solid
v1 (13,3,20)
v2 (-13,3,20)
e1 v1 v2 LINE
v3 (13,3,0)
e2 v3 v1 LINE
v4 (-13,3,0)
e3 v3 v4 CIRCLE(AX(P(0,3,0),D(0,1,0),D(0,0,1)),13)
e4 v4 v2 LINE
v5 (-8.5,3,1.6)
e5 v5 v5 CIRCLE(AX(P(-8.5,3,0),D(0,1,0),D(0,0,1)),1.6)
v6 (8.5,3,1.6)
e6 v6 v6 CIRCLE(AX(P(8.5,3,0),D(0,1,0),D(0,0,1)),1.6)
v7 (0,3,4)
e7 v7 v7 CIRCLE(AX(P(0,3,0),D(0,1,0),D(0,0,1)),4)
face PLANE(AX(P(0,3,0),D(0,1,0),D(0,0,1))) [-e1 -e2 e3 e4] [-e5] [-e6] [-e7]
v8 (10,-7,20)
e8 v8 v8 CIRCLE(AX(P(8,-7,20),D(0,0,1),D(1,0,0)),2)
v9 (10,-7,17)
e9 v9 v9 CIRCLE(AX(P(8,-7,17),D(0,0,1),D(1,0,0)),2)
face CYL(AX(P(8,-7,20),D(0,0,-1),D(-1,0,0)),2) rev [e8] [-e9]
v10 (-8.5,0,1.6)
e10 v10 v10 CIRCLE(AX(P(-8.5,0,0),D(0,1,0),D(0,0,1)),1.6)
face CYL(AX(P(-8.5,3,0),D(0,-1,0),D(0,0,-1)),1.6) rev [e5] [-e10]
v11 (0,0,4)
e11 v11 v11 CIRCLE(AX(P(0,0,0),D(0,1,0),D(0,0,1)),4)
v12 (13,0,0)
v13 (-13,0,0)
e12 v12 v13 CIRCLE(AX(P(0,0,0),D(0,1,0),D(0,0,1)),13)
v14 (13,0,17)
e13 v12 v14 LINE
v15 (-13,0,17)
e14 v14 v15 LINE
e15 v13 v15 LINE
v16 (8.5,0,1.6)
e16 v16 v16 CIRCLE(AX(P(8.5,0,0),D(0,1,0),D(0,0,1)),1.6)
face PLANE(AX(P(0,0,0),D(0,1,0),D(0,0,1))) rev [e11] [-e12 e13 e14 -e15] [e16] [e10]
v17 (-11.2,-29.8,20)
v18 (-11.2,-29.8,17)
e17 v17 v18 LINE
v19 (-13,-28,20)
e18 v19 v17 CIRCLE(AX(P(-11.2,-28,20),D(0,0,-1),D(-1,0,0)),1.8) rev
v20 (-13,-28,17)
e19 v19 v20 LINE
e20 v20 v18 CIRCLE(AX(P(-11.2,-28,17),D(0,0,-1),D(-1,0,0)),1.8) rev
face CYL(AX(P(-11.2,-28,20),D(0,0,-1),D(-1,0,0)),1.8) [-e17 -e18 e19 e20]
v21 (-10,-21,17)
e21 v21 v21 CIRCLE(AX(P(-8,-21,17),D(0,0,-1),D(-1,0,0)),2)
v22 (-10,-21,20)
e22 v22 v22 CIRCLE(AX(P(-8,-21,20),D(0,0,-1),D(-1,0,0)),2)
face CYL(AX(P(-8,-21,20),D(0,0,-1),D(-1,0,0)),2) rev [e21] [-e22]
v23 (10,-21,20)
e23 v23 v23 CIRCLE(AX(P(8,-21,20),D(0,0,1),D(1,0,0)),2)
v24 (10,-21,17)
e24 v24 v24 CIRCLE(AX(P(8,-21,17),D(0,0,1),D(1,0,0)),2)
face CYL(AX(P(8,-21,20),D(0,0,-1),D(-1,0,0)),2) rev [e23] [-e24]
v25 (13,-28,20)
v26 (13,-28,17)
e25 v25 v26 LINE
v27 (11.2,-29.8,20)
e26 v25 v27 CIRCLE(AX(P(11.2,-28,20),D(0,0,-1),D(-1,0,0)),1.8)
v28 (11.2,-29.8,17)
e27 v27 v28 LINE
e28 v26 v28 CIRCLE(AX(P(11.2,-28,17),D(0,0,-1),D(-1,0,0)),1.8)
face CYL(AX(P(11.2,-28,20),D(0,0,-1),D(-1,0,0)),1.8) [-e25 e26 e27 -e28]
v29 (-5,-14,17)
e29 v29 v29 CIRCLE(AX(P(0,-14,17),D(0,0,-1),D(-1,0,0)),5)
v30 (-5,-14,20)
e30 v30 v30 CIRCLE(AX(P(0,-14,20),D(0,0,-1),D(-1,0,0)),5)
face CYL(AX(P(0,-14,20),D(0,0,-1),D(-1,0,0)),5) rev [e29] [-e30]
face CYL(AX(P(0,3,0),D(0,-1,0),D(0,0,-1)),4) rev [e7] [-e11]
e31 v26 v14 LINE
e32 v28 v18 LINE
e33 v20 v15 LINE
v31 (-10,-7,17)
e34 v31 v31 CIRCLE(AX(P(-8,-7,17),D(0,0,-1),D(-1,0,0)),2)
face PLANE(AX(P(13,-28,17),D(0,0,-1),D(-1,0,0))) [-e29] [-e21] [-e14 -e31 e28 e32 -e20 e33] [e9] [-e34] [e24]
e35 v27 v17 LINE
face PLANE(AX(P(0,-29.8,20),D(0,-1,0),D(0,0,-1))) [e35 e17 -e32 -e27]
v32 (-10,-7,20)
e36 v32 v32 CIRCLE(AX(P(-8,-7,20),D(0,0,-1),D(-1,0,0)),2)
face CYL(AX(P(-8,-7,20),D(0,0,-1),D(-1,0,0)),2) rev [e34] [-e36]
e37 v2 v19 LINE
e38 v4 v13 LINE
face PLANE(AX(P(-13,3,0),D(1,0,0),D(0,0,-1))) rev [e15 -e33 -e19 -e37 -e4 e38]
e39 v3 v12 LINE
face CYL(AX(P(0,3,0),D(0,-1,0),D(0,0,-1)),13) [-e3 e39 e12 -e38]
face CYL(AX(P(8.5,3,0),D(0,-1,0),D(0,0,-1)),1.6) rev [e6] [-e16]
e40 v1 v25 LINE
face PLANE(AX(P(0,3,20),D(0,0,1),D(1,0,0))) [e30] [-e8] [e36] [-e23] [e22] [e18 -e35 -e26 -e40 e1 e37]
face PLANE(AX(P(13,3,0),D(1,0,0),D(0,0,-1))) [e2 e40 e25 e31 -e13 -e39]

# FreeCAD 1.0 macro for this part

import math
import FreeCAD as App
import Part
import Sketcher
Q = App.Units.Quantity


def add_polygon(sketch, points):
    """Adds a closed chain of lines whose ends are joined by coincident constraints."""
    first, n = sketch.GeometryCount, len(points)
    for a, b in zip(points, points[1:] + points[:1]):
        sketch.addGeometry(Part.LineSegment(App.Vector(*a, 0), App.Vector(*b, 0)), False)
    for i in range(n):
        sketch.addConstraint(Sketcher.Constraint("Coincident", first + i, 2, first + (i + 1) % n, 1))

doc = App.newDocument("Part")
body = doc.addObject("PartDesign::Body", "Body")

# Sketch on XZ plane
sketch1 = body.newObject("Sketcher::SketchObject", "Sketch")
sketch1.AttachmentSupport = (doc.getObject("XZ_Plane"), [""])
sketch1.MapMode = "FlatFace"
sketch1.addGeometry([
    Part.ArcOfCircle(Part.Circle(App.Vector(0, 0, 0), App.Vector(0, 0, 1), 13), math.radians(180), math.radians(360)),  # 0
    Part.LineSegment(App.Vector(-13, 0, 0), App.Vector(-13, 20, 0)),  # 1
    Part.LineSegment(App.Vector(-13, 20, 0), App.Vector(13, 20, 0)),  # 2
    Part.LineSegment(App.Vector(13, 20, 0), App.Vector(13, 0, 0)),  # 3
    Part.Circle(App.Vector(-8.5, 0, 0), App.Vector(0, 0, 1), 1.6),  # 4
    Part.Circle(App.Vector(0, 0, 0), App.Vector(0, 0, 1), 4),  # 5
    Part.Circle(App.Vector(8.5, 0, 0), App.Vector(0, 0, 1), 1.6),  # 6
], False)
sketch1.addConstraint([
    Sketcher.Constraint("Tangent", 0, 1, 1, 1),
    Sketcher.Constraint("Coincident", 1, 2, 2, 1),
    Sketcher.Constraint("Coincident", 2, 2, 3, 1),
    Sketcher.Constraint("Tangent", 3, 2, 0, 2),
    Sketcher.Constraint("Vertical", 1),
    Sketcher.Constraint("Horizontal", 2),
    Sketcher.Constraint("Vertical", 3),
    Sketcher.Constraint("Coincident", 0, 3, -1, 1),
    Sketcher.Constraint("Coincident", 5, 3, -1, 1),
    Sketcher.Constraint("Equal", 4, 6),
    Sketcher.Constraint("Symmetric", 4, 3, 6, 3, -1, 1),
    Sketcher.Constraint("PointOnObject", 4, 3, -1),
    Sketcher.Constraint("Diameter", 5, Q("8 mm")),
    Sketcher.Constraint("Radius", 0, Q("13 mm")),
    Sketcher.Constraint("Diameter", 4, Q("3.2 mm")),
    Sketcher.Constraint("DistanceY", 1, 1, 1, 2, Q("20 mm")),
    Sketcher.Constraint("DistanceX", 4, 3, 6, 3, Q("17 mm")),
])
pad1 = body.newObject("PartDesign::Pad", "Pad")
pad1.Profile = sketch1
pad1.Length = 3
pad1.Reversed = True

# Sketch on XZ plane
sketch2 = body.newObject("Sketcher::SketchObject", "Sketch001")
sketch2.AttachmentSupport = (doc.getObject("XZ_Plane"), [""])
sketch2.MapMode = "FlatFace"
add_polygon(sketch2, [(-13, 20), (-13, 17), (13, 17), (13, 20)])  # lines 0-3
sketch2.addConstraint([
    Sketcher.Constraint("Vertical", 0),
    Sketcher.Constraint("Horizontal", 1),
    Sketcher.Constraint("Vertical", 2),
    Sketcher.Constraint("Horizontal", 3),
    Sketcher.Constraint("DistanceX", 1, 1, 1, 2, Q("26 mm")),
    Sketcher.Constraint("DistanceY", 0, 2, 0, 1, Q("3 mm")),
    Sketcher.Constraint("DistanceX", 0, 2, -1, 1, Q("13 mm")),
    Sketcher.Constraint("DistanceY", -1, 1, 0, 2, Q("17 mm")),
])
pad2 = body.newObject("PartDesign::Pad", "Pad001")
pad2.Profile = sketch2
pad2.Length = 28

# Sketch on XY plane
sketch3 = body.newObject("Sketcher::SketchObject", "Sketch002")
sketch3.AttachmentSupport = (doc.getObject("XY_Plane"), [""])
sketch3.MapMode = "FlatFace"
sketch3.AttachmentOffset = App.Placement(App.Vector(0, 0, 17), App.Rotation())
sketch3.addGeometry([
    Part.Circle(App.Vector(0, -14, 0), App.Vector(0, 0, 1), 5),  # 0
    Part.Circle(App.Vector(-8, -7, 0), App.Vector(0, 0, 1), 2),  # 1
    Part.Circle(App.Vector(-8, -21, 0), App.Vector(0, 0, 1), 2),  # 2
    Part.Circle(App.Vector(8, -21, 0), App.Vector(0, 0, 1), 2),  # 3
    Part.Circle(App.Vector(8, -7, 0), App.Vector(0, 0, 1), 2),  # 4
], False)
sketch3.addConstraint([
    Sketcher.Constraint("Equal", 1, 2),
    Sketcher.Constraint("Equal", 2, 3),
    Sketcher.Constraint("Equal", 3, 4),
    Sketcher.Constraint("Symmetric", 2, 3, 3, 3, -2),
    Sketcher.Constraint("Symmetric", 1, 3, 4, 3, -2),
    Sketcher.Constraint("PointOnObject", 0, 3, -2),
    Sketcher.Constraint("Vertical", 1, 3, 2, 3),
    Sketcher.Constraint("Diameter", 0, Q("10 mm")),
    Sketcher.Constraint("Diameter", 1, Q("4 mm")),
    Sketcher.Constraint("DistanceY", 0, 3, -1, 1, Q("14 mm")),
    Sketcher.Constraint("DistanceX", 1, 3, -1, 1, Q("8 mm")),
    Sketcher.Constraint("DistanceY", 1, 3, -1, 1, Q("7 mm")),
    Sketcher.Constraint("DistanceY", 2, 3, -1, 1, Q("21 mm")),
])
pocket1 = body.newObject("PartDesign::Pocket", "Pocket")
pocket1.Profile = sketch3
pocket1.Type = "ThroughAll"
pocket1.Reversed = True

# Sketch on XY plane
sketch4 = body.newObject("Sketcher::SketchObject", "Sketch003")
sketch4.AttachmentSupport = (doc.getObject("XY_Plane"), [""])
sketch4.MapMode = "FlatFace"
sketch4.AttachmentOffset = App.Placement(App.Vector(0, 0, 17), App.Rotation())
sketch4.addGeometry([
    Part.ArcOfCircle(Part.Circle(App.Vector(-11.2, -28, 0), App.Vector(0, 0, 1), 1.8), math.radians(180), math.radians(270)),
    Part.LineSegment(App.Vector(-13, -28, 0), App.Vector(13, -28, 0)),
    Part.ArcOfCircle(Part.Circle(App.Vector(11.2, -28, 0), App.Vector(0, 0, 1), 1.8), math.radians(-90), math.radians(0)),
    Part.LineSegment(App.Vector(11.2, -29.8, 0), App.Vector(-11.2, -29.8, 0)),
], False)
sketch4.addConstraint([
    Sketcher.Constraint("Coincident", 0, 1, 1, 1),
    Sketcher.Constraint("Coincident", 1, 2, 2, 2),
    Sketcher.Constraint("Tangent", 2, 1, 3, 1),
    Sketcher.Constraint("Tangent", 3, 2, 0, 2),
    Sketcher.Constraint("Horizontal", 1),
    Sketcher.Constraint("Horizontal", 3),
    Sketcher.Constraint("Equal", 0, 2),
    Sketcher.Constraint("Horizontal", 2, 3, 0, 1),
    Sketcher.Constraint("Radius", 0, Q("1.8 mm")),
    Sketcher.Constraint("DistanceX", 1, 1, 1, 2, Q("26 mm")),
    Sketcher.Constraint("DistanceY", 0, 3, -1, 1, Q("28 mm")),
    Sketcher.Constraint("DistanceX", 0, 1, -1, 1, Q("13 mm")),
])
pad3 = body.newObject("PartDesign::Pad", "Pad002")
pad3.Profile = sketch4
pad3.Length = 3

doc.recompute()
